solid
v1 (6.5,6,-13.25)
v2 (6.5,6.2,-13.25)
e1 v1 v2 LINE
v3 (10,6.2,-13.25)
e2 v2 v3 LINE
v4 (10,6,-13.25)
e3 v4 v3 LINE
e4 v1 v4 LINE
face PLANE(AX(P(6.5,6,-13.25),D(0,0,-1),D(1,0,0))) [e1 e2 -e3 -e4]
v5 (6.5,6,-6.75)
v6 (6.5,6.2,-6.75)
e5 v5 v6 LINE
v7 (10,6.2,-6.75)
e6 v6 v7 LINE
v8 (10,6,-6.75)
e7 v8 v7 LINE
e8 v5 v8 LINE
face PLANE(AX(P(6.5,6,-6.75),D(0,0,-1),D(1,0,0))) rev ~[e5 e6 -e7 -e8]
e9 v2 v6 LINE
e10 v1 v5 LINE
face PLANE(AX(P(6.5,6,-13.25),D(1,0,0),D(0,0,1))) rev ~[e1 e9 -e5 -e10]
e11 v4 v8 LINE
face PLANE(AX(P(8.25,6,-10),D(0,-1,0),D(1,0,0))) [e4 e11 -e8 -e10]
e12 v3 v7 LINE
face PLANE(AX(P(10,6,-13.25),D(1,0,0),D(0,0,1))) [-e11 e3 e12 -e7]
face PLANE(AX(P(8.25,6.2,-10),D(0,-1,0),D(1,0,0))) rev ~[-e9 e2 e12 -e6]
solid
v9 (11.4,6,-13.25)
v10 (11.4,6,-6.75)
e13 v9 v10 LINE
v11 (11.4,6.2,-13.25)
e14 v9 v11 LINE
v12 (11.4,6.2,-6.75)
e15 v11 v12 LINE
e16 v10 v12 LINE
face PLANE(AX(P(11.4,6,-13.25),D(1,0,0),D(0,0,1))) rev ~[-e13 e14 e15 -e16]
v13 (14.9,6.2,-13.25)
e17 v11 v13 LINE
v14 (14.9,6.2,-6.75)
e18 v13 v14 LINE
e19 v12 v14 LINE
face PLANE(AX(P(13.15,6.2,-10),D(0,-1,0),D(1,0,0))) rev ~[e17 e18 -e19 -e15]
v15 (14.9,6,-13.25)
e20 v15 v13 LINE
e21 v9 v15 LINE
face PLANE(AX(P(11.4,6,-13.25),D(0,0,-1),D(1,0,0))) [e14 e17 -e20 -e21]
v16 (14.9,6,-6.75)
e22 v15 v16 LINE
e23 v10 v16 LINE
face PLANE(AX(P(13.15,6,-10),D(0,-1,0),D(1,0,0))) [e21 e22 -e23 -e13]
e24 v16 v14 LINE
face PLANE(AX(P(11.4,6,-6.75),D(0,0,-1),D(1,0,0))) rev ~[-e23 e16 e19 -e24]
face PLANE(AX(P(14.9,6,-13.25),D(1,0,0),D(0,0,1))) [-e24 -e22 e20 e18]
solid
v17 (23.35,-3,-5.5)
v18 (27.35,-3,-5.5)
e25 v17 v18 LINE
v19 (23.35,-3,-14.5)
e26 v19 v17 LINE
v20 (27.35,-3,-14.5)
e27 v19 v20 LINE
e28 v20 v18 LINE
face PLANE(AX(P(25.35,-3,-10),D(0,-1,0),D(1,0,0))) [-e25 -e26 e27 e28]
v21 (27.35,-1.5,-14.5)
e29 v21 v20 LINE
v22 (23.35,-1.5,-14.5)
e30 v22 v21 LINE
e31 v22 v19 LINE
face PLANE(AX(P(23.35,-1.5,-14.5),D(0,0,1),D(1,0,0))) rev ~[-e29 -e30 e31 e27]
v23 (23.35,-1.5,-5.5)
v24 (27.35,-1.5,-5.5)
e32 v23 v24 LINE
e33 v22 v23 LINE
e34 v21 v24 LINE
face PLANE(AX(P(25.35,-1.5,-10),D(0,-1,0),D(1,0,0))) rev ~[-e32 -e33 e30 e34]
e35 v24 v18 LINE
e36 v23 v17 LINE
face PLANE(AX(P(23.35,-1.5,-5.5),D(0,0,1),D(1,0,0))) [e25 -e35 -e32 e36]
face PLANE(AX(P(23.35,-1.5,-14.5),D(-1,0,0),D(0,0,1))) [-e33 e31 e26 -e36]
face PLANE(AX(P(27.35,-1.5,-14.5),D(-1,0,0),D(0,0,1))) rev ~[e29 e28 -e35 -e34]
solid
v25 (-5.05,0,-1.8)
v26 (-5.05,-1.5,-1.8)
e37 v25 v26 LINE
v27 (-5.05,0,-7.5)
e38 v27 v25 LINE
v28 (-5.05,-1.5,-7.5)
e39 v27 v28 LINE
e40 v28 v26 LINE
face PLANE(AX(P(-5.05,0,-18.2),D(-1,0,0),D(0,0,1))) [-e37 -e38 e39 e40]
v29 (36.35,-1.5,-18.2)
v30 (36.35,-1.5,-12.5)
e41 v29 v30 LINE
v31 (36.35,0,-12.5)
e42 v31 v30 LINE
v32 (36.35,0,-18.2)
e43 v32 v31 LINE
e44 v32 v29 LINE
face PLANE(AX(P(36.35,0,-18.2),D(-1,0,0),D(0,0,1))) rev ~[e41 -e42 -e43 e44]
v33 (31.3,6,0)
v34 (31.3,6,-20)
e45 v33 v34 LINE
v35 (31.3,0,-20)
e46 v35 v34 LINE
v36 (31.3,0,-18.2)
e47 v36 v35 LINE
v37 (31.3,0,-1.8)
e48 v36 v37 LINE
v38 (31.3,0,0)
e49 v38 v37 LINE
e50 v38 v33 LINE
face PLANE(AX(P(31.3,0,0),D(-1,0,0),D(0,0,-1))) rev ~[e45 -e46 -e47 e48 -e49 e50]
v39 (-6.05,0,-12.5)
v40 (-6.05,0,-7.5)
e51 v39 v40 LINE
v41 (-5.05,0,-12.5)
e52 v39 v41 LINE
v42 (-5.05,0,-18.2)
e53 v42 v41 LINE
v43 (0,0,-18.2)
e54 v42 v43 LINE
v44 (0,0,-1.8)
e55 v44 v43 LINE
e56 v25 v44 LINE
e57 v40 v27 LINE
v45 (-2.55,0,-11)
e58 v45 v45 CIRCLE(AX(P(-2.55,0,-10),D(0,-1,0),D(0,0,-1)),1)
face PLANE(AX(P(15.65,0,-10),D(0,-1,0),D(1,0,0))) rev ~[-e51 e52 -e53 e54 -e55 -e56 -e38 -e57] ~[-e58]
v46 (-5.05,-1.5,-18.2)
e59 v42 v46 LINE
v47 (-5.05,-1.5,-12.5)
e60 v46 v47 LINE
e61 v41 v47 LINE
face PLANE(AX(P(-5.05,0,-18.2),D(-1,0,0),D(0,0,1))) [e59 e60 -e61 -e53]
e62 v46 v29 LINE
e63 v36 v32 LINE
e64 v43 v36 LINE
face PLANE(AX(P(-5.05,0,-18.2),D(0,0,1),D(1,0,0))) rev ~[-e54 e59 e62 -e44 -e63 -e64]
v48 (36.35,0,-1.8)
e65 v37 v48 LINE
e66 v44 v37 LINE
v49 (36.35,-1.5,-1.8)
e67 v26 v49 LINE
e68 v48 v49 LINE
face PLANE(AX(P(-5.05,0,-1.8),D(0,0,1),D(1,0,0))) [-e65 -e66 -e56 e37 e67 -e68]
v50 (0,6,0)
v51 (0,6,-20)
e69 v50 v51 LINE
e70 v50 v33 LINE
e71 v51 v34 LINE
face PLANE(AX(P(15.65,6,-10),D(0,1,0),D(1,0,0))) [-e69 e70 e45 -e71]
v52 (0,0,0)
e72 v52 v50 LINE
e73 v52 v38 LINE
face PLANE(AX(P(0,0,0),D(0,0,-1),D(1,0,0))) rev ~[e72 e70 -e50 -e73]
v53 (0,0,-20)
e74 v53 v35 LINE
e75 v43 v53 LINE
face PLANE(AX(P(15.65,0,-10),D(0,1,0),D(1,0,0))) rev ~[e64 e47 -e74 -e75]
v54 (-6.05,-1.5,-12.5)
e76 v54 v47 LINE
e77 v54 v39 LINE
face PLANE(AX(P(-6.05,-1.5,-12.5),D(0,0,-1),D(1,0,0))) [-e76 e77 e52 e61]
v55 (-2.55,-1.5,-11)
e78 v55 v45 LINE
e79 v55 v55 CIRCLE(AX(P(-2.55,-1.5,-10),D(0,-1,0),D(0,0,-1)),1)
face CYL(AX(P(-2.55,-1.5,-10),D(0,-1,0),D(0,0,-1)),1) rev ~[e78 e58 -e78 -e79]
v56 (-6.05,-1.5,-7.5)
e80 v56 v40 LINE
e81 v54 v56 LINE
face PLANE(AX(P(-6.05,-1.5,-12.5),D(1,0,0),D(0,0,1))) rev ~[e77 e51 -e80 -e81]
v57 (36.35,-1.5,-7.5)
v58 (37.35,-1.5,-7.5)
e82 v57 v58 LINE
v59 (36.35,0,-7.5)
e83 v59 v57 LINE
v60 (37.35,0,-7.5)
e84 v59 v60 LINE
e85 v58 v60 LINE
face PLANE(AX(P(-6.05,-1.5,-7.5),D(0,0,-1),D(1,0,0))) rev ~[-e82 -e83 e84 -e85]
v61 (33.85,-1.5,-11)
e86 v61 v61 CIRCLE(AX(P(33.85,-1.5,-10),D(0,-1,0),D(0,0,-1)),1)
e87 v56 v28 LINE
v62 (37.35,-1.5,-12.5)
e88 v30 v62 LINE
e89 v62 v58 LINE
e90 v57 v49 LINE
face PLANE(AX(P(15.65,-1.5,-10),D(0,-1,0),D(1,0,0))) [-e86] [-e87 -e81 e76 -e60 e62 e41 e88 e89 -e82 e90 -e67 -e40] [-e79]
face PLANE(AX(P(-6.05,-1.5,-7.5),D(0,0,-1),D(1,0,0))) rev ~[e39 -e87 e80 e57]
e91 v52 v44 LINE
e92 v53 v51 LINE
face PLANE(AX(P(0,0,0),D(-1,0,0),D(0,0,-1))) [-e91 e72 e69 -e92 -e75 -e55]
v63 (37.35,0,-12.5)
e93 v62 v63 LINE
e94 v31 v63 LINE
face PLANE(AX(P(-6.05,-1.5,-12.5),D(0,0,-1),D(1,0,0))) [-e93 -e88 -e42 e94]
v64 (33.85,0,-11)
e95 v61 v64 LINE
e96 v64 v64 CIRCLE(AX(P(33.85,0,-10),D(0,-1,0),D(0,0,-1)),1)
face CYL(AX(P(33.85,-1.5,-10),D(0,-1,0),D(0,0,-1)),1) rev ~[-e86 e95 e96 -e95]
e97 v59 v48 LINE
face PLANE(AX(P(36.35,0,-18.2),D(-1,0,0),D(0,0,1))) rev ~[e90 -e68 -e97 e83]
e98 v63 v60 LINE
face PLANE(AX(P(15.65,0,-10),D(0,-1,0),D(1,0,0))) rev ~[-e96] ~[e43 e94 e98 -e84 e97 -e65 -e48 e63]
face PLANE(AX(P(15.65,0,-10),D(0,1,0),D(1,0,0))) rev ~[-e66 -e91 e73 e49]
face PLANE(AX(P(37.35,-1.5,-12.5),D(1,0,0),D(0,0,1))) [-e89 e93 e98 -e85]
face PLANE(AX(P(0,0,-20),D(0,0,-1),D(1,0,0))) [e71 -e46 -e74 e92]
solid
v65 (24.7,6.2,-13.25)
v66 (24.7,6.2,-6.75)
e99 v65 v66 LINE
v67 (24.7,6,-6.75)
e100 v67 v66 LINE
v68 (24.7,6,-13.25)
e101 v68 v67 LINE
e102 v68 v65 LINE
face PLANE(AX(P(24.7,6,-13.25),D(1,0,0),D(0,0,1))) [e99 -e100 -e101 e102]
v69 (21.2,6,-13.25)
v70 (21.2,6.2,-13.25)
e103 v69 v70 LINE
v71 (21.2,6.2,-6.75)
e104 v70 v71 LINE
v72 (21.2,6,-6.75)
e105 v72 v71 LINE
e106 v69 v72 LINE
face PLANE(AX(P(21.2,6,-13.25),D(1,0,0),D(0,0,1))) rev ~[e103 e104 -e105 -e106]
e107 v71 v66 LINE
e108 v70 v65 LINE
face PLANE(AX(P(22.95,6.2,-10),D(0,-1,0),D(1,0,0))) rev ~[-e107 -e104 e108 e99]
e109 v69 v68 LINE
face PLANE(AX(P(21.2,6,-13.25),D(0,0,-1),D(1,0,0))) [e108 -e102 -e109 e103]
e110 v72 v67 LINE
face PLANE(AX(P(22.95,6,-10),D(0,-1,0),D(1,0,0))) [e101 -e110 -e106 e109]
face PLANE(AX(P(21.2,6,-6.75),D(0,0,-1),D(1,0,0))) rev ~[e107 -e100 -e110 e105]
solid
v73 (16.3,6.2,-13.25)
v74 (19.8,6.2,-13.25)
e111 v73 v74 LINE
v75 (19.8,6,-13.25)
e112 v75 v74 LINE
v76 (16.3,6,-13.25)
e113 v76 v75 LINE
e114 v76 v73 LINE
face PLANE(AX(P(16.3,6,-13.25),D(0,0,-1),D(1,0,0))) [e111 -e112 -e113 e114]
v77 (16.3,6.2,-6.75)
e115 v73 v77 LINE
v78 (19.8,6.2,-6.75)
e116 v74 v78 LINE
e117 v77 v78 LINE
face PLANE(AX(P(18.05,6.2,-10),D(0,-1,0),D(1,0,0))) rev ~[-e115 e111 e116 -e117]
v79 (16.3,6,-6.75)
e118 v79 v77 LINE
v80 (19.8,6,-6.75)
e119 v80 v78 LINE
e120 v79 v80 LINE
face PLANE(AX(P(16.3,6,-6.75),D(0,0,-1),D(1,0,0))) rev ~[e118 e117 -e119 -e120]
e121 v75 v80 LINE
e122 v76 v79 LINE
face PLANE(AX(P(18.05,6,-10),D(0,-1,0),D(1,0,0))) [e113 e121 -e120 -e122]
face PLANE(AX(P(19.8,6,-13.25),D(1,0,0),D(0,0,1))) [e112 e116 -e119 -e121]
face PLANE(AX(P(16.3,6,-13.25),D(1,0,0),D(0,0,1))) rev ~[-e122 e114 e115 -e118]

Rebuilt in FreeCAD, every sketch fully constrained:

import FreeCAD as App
import Part
import Sketcher
from FreeCAD import Vector
Q = App.Units.Quantity

doc = App.newDocument("Part")
body = doc.addObject("PartDesign::Body", "Body")

# Sketch on XZ plane
sketch1 = body.newObject("Sketcher::SketchObject", "Sketch")
sketch1.AttachmentSupport = (doc.getObject("XZ_Plane"), [""])
sketch1.MapMode = "FlatFace"
sketch1.addGeometry([
    Part.LineSegment(Vector(0, -20, 0), Vector(0, 0, 0)),
    Part.LineSegment(Vector(0, 0, 0), Vector(31, 0, 0)),
    Part.LineSegment(Vector(31, 0, 0), Vector(31, -20, 0)),
    Part.LineSegment(Vector(31, -20, 0), Vector(0, -20, 0)),
], False)
sketch1.addConstraint([
    Sketcher.Constraint("Coincident", 0, 2, 1, 1),
    Sketcher.Constraint("Coincident", 1, 2, 2, 1),
    Sketcher.Constraint("Coincident", 2, 2, 3, 1),
    Sketcher.Constraint("Coincident", 3, 2, 0, 1),
    Sketcher.Constraint("Vertical", 0),
    Sketcher.Constraint("Horizontal", 1),
    Sketcher.Constraint("Vertical", 2),
    Sketcher.Constraint("Horizontal", 3),
    Sketcher.Constraint("Coincident", 0, 2, -1, 1),
    Sketcher.Constraint("DistanceY", 0, 1, 0, 2, Q("20 mm")),
    Sketcher.Constraint("DistanceX", 1, 1, 1, 2, Q("31.3 mm")),
])
pad1 = body.newObject("PartDesign::Pad", "Pad")
pad1.Profile = sketch1
pad1.Length = 6
pad1.Reversed = True
body2 = doc.addObject("PartDesign::Body", "Body001")

# Sketch on XZ plane
sketch2 = body2.newObject("Sketcher::SketchObject", "Sketch001")
sketch2.AttachmentSupport = (doc.getObject("XZ_Plane001"), [""])
sketch2.MapMode = "FlatFace"
sketch2.AttachmentOffset = App.Placement(Vector(0, 0, -6), App.Rotation())
sketch2.addGeometry([
    Part.LineSegment(Vector(11.4, -6.8, 0), Vector(11.4, -13.2, 0)),
    Part.LineSegment(Vector(11.4, -13.2, 0), Vector(14.9, -13.2, 0)),
    Part.LineSegment(Vector(14.9, -13.2, 0), Vector(14.9, -6.8, 0)),
    Part.LineSegment(Vector(14.9, -6.8, 0), Vector(11.4, -6.8, 0)),
], False)
sketch2.addConstraint([
    Sketcher.Constraint("Coincident", 0, 2, 1, 1),
    Sketcher.Constraint("Coincident", 1, 2, 2, 1),
    Sketcher.Constraint("Coincident", 2, 2, 3, 1),
    Sketcher.Constraint("Coincident", 3, 2, 0, 1),
    Sketcher.Constraint("Vertical", 0),
    Sketcher.Constraint("Horizontal", 1),
    Sketcher.Constraint("Vertical", 2),
    Sketcher.Constraint("Horizontal", 3),
    Sketcher.Constraint("DistanceX", 1, 1, 1, 2, Q("3.5 mm")),
    Sketcher.Constraint("DistanceY", 0, 2, 0, 1, Q("6.5 mm")),
    Sketcher.Constraint("DistanceX", -1, 1, 0, 2, Q("11.4 mm")),
    Sketcher.Constraint("DistanceY", 0, 2, -1, 1, Q("13.25 mm")),
])
pad2 = body2.newObject("PartDesign::Pad", "Pad001")
pad2.Profile = sketch2
pad2.Length = 0.2
pad2.Reversed = True
body3 = doc.addObject("PartDesign::Body", "Body002")

# Sketch on XZ plane
sketch3 = body3.newObject("Sketcher::SketchObject", "Sketch002")
sketch3.AttachmentSupport = (doc.getObject("XZ_Plane002"), [""])
sketch3.MapMode = "FlatFace"
sketch3.AttachmentOffset = App.Placement(Vector(0, 0, -6), App.Rotation())
sketch3.addGeometry([
    Part.LineSegment(Vector(6.5, -6.8, 0), Vector(6.5, -13.2, 0)),
    Part.LineSegment(Vector(6.5, -13.2, 0), Vector(10, -13.2, 0)),
    Part.LineSegment(Vector(10, -13.2, 0), Vector(10, -6.8, 0)),
    Part.LineSegment(Vector(10, -6.8, 0), Vector(6.5, -6.8, 0)),
], False)
sketch3.addConstraint([
    Sketcher.Constraint("Coincident", 0, 2, 1, 1),
    Sketcher.Constraint("Coincident", 1, 2, 2, 1),
    Sketcher.Constraint("Coincident", 2, 2, 3, 1),
    Sketcher.Constraint("Coincident", 3, 2, 0, 1),
    Sketcher.Constraint("Vertical", 0),
    Sketcher.Constraint("Horizontal", 1),
    Sketcher.Constraint("Vertical", 2),
    Sketcher.Constraint("Horizontal", 3),
    Sketcher.Constraint("DistanceX", 1, 1, 1, 2, Q("3.5 mm")),
    Sketcher.Constraint("DistanceY", 0, 2, 0, 1, Q("6.5 mm")),
    Sketcher.Constraint("DistanceX", -1, 1, 1, 2, Q("10 mm")),
    Sketcher.Constraint("DistanceY", 0, 2, -1, 1, Q("13.25 mm")),
])
pad3 = body3.newObject("PartDesign::Pad", "Pad002")
pad3.Profile = sketch3
pad3.Length = 0.2
pad3.Reversed = True
body4 = doc.addObject("PartDesign::Body", "Body003")

# Sketch on XZ plane
sketch4 = body4.newObject("Sketcher::SketchObject", "Sketch003")
sketch4.AttachmentSupport = (doc.getObject("XZ_Plane003"), [""])
sketch4.MapMode = "FlatFace"
sketch4.AttachmentOffset = App.Placement(Vector(0, 0, -6), App.Rotation())
sketch4.addGeometry([
    Part.LineSegment(Vector(16.3, -6.8, 0), Vector(16.3, -13.2, 0)),
    Part.LineSegment(Vector(16.3, -13.2, 0), Vector(19.8, -13.2, 0)),
    Part.LineSegment(Vector(19.8, -13.2, 0), Vector(19.8, -6.8, 0)),
    Part.LineSegment(Vector(19.8, -6.8, 0), Vector(16.3, -6.8, 0)),
], False)
sketch4.addConstraint([
    Sketcher.Constraint("Coincident", 0, 2, 1, 1),
    Sketcher.Constraint("Coincident", 1, 2, 2, 1),
    Sketcher.Constraint("Coincident", 2, 2, 3, 1),
    Sketcher.Constraint("Coincident", 3, 2, 0, 1),
    Sketcher.Constraint("Vertical", 0),
    Sketcher.Constraint("Horizontal", 1),
    Sketcher.Constraint("Vertical", 2),
    Sketcher.Constraint("Horizontal", 3),
    Sketcher.Constraint("DistanceX", 1, 1, 1, 2, Q("3.5 mm")),
    Sketcher.Constraint("DistanceY", 0, 2, 0, 1, Q("6.5 mm")),
    Sketcher.Constraint("DistanceX", -1, 1, 0, 2, Q("16.3 mm")),
    Sketcher.Constraint("DistanceY", 0, 2, -1, 1, Q("13.25 mm")),
])
pad4 = body4.newObject("PartDesign::Pad", "Pad003")
pad4.Profile = sketch4
pad4.Length = 0.2
pad4.Reversed = True
body5 = doc.addObject("PartDesign::Body", "Body004")

# Sketch on XZ plane
sketch5 = body5.newObject("Sketcher::SketchObject", "Sketch004")
sketch5.AttachmentSupport = (doc.getObject("XZ_Plane004"), [""])
sketch5.MapMode = "FlatFace"
sketch5.AttachmentOffset = App.Placement(Vector(0, 0, -6), App.Rotation())
sketch5.addGeometry([
    Part.LineSegment(Vector(21.2, -6.8, 0), Vector(21.2, -13.2, 0)),
    Part.LineSegment(Vector(21.2, -13.2, 0), Vector(24.7, -13.2, 0)),
    Part.LineSegment(Vector(24.7, -13.2, 0), Vector(24.7, -6.8, 0)),
    Part.LineSegment(Vector(24.7, -6.8, 0), Vector(21.2, -6.8, 0)),
], False)
sketch5.addConstraint([
    Sketcher.Constraint("Coincident", 0, 2, 1, 1),
    Sketcher.Constraint("Coincident", 1, 2, 2, 1),
    Sketcher.Constraint("Coincident", 2, 2, 3, 1),
    Sketcher.Constraint("Coincident", 3, 2, 0, 1),
    Sketcher.Constraint("Vertical", 0),
    Sketcher.Constraint("Horizontal", 1),
    Sketcher.Constraint("Vertical", 2),
    Sketcher.Constraint("Horizontal", 3),
    Sketcher.Constraint("DistanceX", 1, 1, 1, 2, Q("3.5 mm")),
    Sketcher.Constraint("DistanceY", 0, 2, 0, 1, Q("6.5 mm")),
    Sketcher.Constraint("DistanceX", -1, 1, 0, 2, Q("21.2 mm")),
    Sketcher.Constraint("DistanceY", 0, 2, -1, 1, Q("13.25 mm")),
])
pad5 = body5.newObject("PartDesign::Pad", "Pad004")
pad5.Profile = sketch5
pad5.Length = 0.2
pad5.Reversed = True
body6 = doc.addObject("PartDesign::Body", "Body005")

# Sketch on XZ plane
sketch6 = body6.newObject("Sketcher::SketchObject", "Sketch005")
sketch6.AttachmentSupport = (doc.getObject("XZ_Plane005"), [""])
sketch6.MapMode = "FlatFace"
sketch6.addGeometry([
    Part.LineSegment(Vector(-5, -2, 0), Vector(-5, -18, 0)),
    Part.LineSegment(Vector(-5, -18, 0), Vector(36, -18, 0)),
    Part.LineSegment(Vector(36, -18, 0), Vector(36, -2, 0)),
    Part.LineSegment(Vector(36, -2, 0), Vector(-5, -2, 0)),
], False)
sketch6.addConstraint([
    Sketcher.Constraint("Coincident", 0, 2, 1, 1),
    Sketcher.Constraint("Coincident", 1, 2, 2, 1),
    Sketcher.Constraint("Coincident", 2, 2, 3, 1),
    Sketcher.Constraint("Coincident", 3, 2, 0, 1),
    Sketcher.Constraint("Vertical", 0),
    Sketcher.Constraint("Horizontal", 1),
    Sketcher.Constraint("Vertical", 2),
    Sketcher.Constraint("Horizontal", 3),
    Sketcher.Constraint("DistanceX", 1, 1, 1, 2, Q("41.4 mm")),
    Sketcher.Constraint("DistanceY", 0, 2, 0, 1, Q("16.4 mm")),
    Sketcher.Constraint("DistanceY", 0, 2, -1, 1, Q("18.2 mm")),
    Sketcher.Constraint("DistanceX", 0, 2, -1, 1, Q("5.05 mm")),
])
pad6 = body6.newObject("PartDesign::Pad", "Pad005")
pad6.Profile = sketch6
pad6.Length = 1.5
doc.recompute()

boolean = body.newObject("PartDesign::Boolean", "Boolean")
boolean.Type = "Fuse"
boolean.addObjects([body6])

# Sketch on XZ plane
sketch7 = body.newObject("Sketcher::SketchObject", "Sketch006")
sketch7.AttachmentSupport = (doc.getObject("XZ_Plane"), [""])
sketch7.MapMode = "FlatFace"
sketch7.AttachmentOffset = App.Placement(Vector(0, 0, 1.5), App.Rotation())
sketch7.addGeometry([
    Part.LineSegment(Vector(-6, -8, 0), Vector(-6, -12, 0)),
    Part.LineSegment(Vector(-6, -12, 0), Vector(37, -12, 0)),
    Part.LineSegment(Vector(37, -12, 0), Vector(37, -8, 0)),
    Part.LineSegment(Vector(37, -8, 0), Vector(-6, -8, 0)),
], False)
sketch7.addConstraint([
    Sketcher.Constraint("Coincident", 0, 2, 1, 1),
    Sketcher.Constraint("Coincident", 1, 2, 2, 1),
    Sketcher.Constraint("Coincident", 2, 2, 3, 1),
    Sketcher.Constraint("Coincident", 3, 2, 0, 1),
    Sketcher.Constraint("Vertical", 0),
    Sketcher.Constraint("Horizontal", 1),
    Sketcher.Constraint("Vertical", 2),
    Sketcher.Constraint("Horizontal", 3),
    Sketcher.Constraint("DistanceY", 0, 2, 0, 1, Q("5 mm")),
    Sketcher.Constraint("DistanceX", 1, 1, 1, 2, Q("43.4 mm")),
    Sketcher.Constraint("DistanceY", 0, 2, -1, 1, Q("12.5 mm")),
    Sketcher.Constraint("DistanceX", 0, 2, -1, 1, Q("6.05 mm")),
])
pad7 = body.newObject("PartDesign::Pad", "Pad006")
pad7.Profile = sketch7
pad7.Length = 1.5
pad7.Reversed = True

# Sketch on XZ plane
sketch8 = body.newObject("Sketcher::SketchObject", "Sketch007")
sketch8.AttachmentSupport = (doc.getObject("XZ_Plane"), [""])
sketch8.MapMode = "FlatFace"
sketch8.AttachmentOffset = App.Placement(Vector(0, 0, 1.5), App.Rotation())
sketch8.addGeometry([
    Part.Circle(Vector(-2.5, -10, 0), Vector(0, 0, 1), 1),
    Part.Circle(Vector(33.9, -10, 0), Vector(0, 0, 1), 1),
], False)
sketch8.addConstraint([
    Sketcher.Constraint("Equal", 0, 1),
    Sketcher.Constraint("Horizontal", 0, 3, 1, 3),
    Sketcher.Constraint("Diameter", 0, Q("2 mm")),
    Sketcher.Constraint("DistanceY", 0, 3, -1, 1, Q("10 mm")),
    Sketcher.Constraint("DistanceX", 0, 3, 1, 3, Q("36.4 mm")),
    Sketcher.Constraint("DistanceX", 0, 3, -1, 1, Q("2.55 mm")),
])
pocket1 = body.newObject("PartDesign::Pocket", "Pocket")
pocket1.Profile = sketch8
pocket1.Length = 1.5
body7 = doc.addObject("PartDesign::Body", "Body006")

# Sketch on XZ plane
sketch9 = body7.newObject("Sketcher::SketchObject", "Sketch008")
sketch9.AttachmentSupport = (doc.getObject("XZ_Plane006"), [""])
sketch9.MapMode = "FlatFace"
sketch9.AttachmentOffset = App.Placement(Vector(0, 0, 1.5), App.Rotation())
sketch9.addGeometry([
    Part.LineSegment(Vector(23.4, -5.5, 0), Vector(23.4, -14.5, 0)),
    Part.LineSegment(Vector(23.4, -14.5, 0), Vector(27.4, -14.5, 0)),
    Part.LineSegment(Vector(27.4, -14.5, 0), Vector(27.4, -5.5, 0)),
    Part.LineSegment(Vector(27.4, -5.5, 0), Vector(23.4, -5.5, 0)),
], False)
sketch9.addConstraint([
    Sketcher.Constraint("Coincident", 0, 2, 1, 1),
    Sketcher.Constraint("Coincident", 1, 2, 2, 1),
    Sketcher.Constraint("Coincident", 2, 2, 3, 1),
    Sketcher.Constraint("Coincident", 3, 2, 0, 1),
    Sketcher.Constraint("Vertical", 0),
    Sketcher.Constraint("Horizontal", 1),
    Sketcher.Constraint("Vertical", 2),
    Sketcher.Constraint("Horizontal", 3),
    Sketcher.Constraint("DistanceX", 1, 1, 1, 2, Q("4 mm")),
    Sketcher.Constraint("DistanceY", 0, 2, 0, 1, Q("9 mm")),
    Sketcher.Constraint("DistanceY", 0, 2, -1, 1, Q("14.5 mm")),
    Sketcher.Constraint("DistanceX", -1, 1, 0, 2, Q("23.35 mm")),
])
pad8 = body7.newObject("PartDesign::Pad", "Pad007")
pad8.Profile = sketch9
pad8.Length = 1.5

doc.recompute()
